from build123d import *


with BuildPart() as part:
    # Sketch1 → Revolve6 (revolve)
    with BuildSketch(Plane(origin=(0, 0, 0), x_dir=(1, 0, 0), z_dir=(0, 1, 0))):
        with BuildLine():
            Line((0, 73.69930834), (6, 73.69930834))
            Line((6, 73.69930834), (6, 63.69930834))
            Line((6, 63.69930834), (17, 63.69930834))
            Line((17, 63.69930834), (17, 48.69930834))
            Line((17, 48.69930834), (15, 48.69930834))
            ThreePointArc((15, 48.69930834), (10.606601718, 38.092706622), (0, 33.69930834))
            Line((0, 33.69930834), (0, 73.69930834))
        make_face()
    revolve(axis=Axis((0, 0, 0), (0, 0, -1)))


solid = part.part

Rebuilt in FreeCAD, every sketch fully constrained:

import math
import FreeCAD as App
import Part
import Sketcher
Q = App.Units.Quantity

doc = App.newDocument("Part")
body = doc.addObject("PartDesign::Body", "Body")

# Sketch on XZ plane
sketch1 = body.newObject("Sketcher::SketchObject", "Sketch")
sketch1.AttachmentSupport = (doc.getObject("XZ_Plane"), [""])
sketch1.MapMode = "FlatFace"
sketch1.addGeometry([
    Part.LineSegment(App.Vector(6, -73.7, 0), App.Vector(0, -73.7, 0)),  # 0
    Part.LineSegment(App.Vector(0, -73.7, 0), App.Vector(0, -33.7, 0)),  # 1
    Part.ArcOfCircle(Part.Circle(App.Vector(0, -48.7, 0), App.Vector(0, 0, 1), 15), math.radians(0), math.radians(90)),  # 2
    Part.LineSegment(App.Vector(15, -48.7, 0), App.Vector(17, -48.7, 0)),  # 3
    Part.LineSegment(App.Vector(17, -48.7, 0), App.Vector(17, -63.7, 0)),  # 4
    Part.LineSegment(App.Vector(17, -63.7, 0), App.Vector(6, -63.7, 0)),  # 5
    Part.LineSegment(App.Vector(6, -63.7, 0), App.Vector(6, -73.7, 0)),  # 6
], False)
sketch1.addConstraint([
    Sketcher.Constraint("Coincident", 0, 2, 1, 1),
    Sketcher.Constraint("Coincident", 1, 2, 2, 2),
    Sketcher.Constraint("Coincident", 2, 1, 3, 1),
    Sketcher.Constraint("Coincident", 3, 2, 4, 1),
    Sketcher.Constraint("Coincident", 4, 2, 5, 1),
    Sketcher.Constraint("Coincident", 5, 2, 6, 1),
    Sketcher.Constraint("Coincident", 6, 2, 0, 1),
    Sketcher.Constraint("Horizontal", 0),
    Sketcher.Constraint("Vertical", 1),
    Sketcher.Constraint("Horizontal", 3),
    Sketcher.Constraint("Vertical", 4),
    Sketcher.Constraint("Horizontal", 5),
    Sketcher.Constraint("Vertical", 6),
    Sketcher.Constraint("PointOnObject", 2, 3, -2),
    Sketcher.Constraint("PointOnObject", 0, 2, -2),
    Sketcher.Constraint("Radius", 2, Q("15 mm")),
    Sketcher.Constraint("DistanceX", 0, 2, 0, 1, Q("6 mm")),
    Sketcher.Constraint("DistanceX", 3, 1, 3, 2, Q("2 mm")),
    Sketcher.Constraint("DistanceY", 1, 1, 1, 2, Q("40 mm")),
    Sketcher.Constraint("DistanceY", 4, 2, 4, 1, Q("15 mm")),
    Sketcher.Constraint("DistanceY", 6, 2, 6, 1, Q("10 mm")),
    Sketcher.Constraint("DistanceY", 2, 3, -1, 1, Q("48.699308 mm")),
])
revolution = body.newObject("PartDesign::Revolution", "Revolution")
revolution.Profile = sketch1
revolution.ReferenceAxis = (sketch1, ["V_Axis"])
revolution.Angle = 360

doc.recompute()
